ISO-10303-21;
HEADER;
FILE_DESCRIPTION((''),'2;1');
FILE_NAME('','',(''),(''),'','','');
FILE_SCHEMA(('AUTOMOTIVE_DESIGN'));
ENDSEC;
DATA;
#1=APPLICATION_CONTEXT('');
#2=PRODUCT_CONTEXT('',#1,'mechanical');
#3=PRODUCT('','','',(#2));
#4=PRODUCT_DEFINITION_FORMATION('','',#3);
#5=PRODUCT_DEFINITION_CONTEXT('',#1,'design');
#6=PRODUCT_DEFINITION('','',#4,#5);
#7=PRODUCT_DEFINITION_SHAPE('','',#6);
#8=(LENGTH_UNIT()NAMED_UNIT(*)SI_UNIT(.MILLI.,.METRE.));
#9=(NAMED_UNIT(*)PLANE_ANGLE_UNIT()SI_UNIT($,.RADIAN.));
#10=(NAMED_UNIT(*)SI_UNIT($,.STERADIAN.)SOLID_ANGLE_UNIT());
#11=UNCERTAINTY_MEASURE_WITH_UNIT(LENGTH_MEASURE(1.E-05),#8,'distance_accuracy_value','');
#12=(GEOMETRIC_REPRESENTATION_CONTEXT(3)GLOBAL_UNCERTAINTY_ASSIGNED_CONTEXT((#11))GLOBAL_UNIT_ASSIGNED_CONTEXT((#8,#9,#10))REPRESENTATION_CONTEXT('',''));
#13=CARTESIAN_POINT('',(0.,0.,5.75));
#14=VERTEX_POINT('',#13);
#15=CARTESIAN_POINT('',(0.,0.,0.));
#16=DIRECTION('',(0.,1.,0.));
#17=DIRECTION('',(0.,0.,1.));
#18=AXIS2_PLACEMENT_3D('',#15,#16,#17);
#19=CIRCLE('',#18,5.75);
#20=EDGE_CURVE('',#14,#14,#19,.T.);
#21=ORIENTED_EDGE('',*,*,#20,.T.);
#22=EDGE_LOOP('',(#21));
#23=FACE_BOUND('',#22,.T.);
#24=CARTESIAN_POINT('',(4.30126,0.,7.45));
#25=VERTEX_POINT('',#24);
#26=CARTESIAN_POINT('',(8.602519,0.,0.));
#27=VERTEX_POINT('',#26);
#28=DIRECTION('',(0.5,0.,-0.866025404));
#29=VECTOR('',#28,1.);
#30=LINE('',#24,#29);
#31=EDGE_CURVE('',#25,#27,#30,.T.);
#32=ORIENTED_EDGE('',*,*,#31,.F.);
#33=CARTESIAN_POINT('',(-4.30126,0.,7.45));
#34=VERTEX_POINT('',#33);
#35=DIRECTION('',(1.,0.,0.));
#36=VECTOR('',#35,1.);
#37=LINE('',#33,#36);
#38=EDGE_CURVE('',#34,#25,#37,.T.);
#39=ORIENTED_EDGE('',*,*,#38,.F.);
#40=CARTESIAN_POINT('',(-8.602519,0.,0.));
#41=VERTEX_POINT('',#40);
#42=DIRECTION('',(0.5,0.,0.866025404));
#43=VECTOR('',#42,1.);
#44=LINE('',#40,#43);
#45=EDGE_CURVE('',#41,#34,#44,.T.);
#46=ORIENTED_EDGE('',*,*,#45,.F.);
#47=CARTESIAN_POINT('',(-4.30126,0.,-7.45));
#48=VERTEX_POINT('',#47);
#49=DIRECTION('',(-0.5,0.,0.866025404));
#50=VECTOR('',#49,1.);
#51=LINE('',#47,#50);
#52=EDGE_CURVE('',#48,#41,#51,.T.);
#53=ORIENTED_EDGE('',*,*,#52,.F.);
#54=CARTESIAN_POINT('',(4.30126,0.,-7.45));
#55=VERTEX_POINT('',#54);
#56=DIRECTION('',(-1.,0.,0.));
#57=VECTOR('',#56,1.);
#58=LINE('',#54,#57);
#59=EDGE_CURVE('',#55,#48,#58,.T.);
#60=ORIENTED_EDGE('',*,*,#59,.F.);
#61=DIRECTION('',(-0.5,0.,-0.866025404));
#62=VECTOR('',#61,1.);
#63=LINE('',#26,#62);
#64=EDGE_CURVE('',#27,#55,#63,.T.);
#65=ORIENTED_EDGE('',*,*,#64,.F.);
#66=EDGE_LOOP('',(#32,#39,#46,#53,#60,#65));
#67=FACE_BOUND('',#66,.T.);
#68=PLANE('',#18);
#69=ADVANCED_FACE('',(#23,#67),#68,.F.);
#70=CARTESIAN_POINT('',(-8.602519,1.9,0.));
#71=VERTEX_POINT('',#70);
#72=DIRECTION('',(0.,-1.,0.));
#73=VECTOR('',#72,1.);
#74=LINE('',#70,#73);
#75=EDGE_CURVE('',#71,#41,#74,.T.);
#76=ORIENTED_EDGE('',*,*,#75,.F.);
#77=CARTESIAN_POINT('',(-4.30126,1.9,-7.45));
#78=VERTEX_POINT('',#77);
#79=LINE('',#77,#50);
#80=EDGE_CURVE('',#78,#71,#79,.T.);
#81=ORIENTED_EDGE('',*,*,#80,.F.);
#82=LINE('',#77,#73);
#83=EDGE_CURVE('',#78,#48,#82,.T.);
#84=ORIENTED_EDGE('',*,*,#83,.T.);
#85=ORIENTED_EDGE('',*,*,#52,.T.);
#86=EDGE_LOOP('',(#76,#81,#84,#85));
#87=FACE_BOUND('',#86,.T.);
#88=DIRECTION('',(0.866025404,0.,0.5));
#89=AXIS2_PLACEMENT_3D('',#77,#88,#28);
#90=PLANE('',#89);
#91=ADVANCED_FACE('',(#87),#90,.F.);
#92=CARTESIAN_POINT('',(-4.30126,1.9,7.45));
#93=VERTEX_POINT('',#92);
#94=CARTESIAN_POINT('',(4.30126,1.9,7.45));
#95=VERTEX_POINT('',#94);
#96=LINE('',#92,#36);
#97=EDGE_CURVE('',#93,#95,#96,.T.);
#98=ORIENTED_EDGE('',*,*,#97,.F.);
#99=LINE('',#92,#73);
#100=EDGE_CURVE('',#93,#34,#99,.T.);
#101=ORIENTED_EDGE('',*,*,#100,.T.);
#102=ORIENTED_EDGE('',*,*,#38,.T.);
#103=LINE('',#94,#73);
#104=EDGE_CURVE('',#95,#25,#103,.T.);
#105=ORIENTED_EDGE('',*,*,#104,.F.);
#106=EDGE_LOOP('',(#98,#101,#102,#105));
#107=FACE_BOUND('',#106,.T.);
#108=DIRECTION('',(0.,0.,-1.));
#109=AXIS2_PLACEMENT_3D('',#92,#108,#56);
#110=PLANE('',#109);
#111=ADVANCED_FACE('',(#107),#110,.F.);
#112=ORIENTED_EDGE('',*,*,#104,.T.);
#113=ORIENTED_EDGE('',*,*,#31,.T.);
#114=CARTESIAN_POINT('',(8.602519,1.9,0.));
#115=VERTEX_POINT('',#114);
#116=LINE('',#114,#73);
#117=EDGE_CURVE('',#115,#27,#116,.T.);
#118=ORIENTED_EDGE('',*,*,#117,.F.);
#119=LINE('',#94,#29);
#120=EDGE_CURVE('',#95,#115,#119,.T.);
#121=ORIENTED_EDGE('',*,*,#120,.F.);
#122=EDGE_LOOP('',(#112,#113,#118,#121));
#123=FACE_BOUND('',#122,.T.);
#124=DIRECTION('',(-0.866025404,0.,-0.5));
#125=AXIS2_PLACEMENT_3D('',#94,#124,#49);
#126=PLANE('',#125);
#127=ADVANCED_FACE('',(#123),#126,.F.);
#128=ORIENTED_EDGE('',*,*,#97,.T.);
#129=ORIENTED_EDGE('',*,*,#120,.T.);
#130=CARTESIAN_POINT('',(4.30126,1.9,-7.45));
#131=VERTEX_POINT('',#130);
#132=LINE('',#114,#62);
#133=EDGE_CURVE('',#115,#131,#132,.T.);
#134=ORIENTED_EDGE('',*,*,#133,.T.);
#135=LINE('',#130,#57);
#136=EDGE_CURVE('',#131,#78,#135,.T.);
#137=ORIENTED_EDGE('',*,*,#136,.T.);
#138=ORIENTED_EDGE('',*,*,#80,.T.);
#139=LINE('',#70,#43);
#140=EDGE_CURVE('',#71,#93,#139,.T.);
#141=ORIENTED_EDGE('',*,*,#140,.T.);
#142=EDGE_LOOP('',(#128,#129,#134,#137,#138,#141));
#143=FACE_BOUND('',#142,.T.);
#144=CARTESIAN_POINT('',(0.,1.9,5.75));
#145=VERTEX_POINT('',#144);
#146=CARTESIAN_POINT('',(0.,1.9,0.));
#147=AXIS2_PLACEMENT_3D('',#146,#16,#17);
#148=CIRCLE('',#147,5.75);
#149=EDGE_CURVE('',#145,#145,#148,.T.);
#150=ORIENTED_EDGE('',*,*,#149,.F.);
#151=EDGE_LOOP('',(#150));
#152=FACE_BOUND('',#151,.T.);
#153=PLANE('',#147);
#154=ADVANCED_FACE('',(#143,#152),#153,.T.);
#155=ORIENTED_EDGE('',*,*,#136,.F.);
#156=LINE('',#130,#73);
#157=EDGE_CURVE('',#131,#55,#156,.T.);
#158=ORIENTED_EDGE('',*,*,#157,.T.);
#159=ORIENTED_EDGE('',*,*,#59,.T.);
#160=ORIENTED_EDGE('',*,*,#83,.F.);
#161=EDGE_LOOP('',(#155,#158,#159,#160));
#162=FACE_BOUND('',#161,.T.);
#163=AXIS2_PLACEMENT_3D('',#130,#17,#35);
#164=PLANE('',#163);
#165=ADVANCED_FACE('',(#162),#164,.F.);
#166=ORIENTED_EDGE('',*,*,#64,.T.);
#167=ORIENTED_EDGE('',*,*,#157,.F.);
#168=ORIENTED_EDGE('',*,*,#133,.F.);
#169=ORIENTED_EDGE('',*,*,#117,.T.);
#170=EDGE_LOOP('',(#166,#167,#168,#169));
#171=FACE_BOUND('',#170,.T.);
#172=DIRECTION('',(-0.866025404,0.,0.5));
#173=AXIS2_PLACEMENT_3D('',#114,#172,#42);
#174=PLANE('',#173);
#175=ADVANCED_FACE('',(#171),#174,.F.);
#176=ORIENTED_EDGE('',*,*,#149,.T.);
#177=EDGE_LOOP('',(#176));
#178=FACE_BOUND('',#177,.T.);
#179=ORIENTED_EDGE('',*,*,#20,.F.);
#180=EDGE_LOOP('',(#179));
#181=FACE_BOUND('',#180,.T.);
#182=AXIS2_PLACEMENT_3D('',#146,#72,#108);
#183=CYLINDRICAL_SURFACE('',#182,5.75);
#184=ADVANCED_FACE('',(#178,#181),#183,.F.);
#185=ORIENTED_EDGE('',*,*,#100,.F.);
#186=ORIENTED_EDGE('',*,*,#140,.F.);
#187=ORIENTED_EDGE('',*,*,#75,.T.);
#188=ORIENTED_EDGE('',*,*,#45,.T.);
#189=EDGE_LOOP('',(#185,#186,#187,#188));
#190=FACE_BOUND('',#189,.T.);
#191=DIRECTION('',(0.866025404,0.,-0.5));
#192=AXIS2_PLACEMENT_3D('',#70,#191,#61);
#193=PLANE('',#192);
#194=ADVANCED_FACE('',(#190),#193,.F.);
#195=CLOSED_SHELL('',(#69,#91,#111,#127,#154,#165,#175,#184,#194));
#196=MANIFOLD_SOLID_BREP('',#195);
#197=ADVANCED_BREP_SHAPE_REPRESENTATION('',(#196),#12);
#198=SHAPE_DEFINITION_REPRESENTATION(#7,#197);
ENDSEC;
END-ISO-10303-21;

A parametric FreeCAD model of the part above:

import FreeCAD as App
import Part
import Sketcher

V = App.Vector
Q = App.Units.Quantity


def add_polygon(sketch, points):
    """Adds a closed chain of lines whose ends are joined by coincident constraints."""
    first, n = sketch.GeometryCount, len(points)
    for a, b in zip(points, points[1:] + points[:1]):
        sketch.addGeometry(Part.LineSegment(App.Vector(*a, 0), App.Vector(*b, 0)), False)
    for i in range(n):
        sketch.addConstraint(Sketcher.Constraint("Coincident", first + i, 2, first + (i + 1) % n, 1))

doc = App.newDocument("Part")
params = doc.addObject("Spreadsheet::Sheet", "Params")
for row, (alias, value) in enumerate([
    ("sketch1_diameter", "11.5 mm"),
    ("pad1_length", "1.9 mm"),
], start=1):
    params.set(f"A{row}", alias)
    params.set(f"B{row}", "=" + value)
    params.setAlias(f"B{row}", alias)

body = doc.addObject("PartDesign::Body", "Body")

sketch1 = doc.addObject("Sketcher::SketchObject", "Sketch")
body.addObject(sketch1)
sketch1.AttachmentSupport = (doc.XZ_Plane, [""])
sketch1.MapMode = "FlatFace"
add_polygon(sketch1, [(-9, 0), (-4, 7), (4, 7), (9, 0), (4, -7), (-4, -7)])
sketch1.addGeometry(Part.Circle(V(0, 0, 0), V(0, 0, 1), 6), False)
sketch1.addConstraint([
    Sketcher.Constraint("Horizontal", 1),
    Sketcher.Constraint("Horizontal", 4),
    Sketcher.Constraint("Coincident", 6, 3, -1, 1),
    Sketcher.Constraint("Symmetric", 0, 2, 3, 2, -1, 1),
    Sketcher.Constraint("Symmetric", 2, 2, 5, 2, -1, 1),
    Sketcher.Constraint("PointOnObject", 2, 2, -1),
    Sketcher.Constraint("Parallel", 2, 5),
    Sketcher.Constraint("Vertical", 1, 2, 3, 2),
    Sketcher.Constraint("Diameter", 6, 11.5),
    Sketcher.Constraint("Angle", 0, Q("60 deg")),
    Sketcher.Constraint("DistanceY", 3, 2, 1, 2, 14.9),
    Sketcher.Constraint("DistanceX", 1, 1, 1, 2, 8.602519),
])
sketch1.setExpression("Constraints[14]", "Params.sketch1_diameter")
pad1 = doc.addObject("PartDesign::Pad", "Pad")
body.addObject(pad1)
pad1.Profile = sketch1
pad1.setExpression("Length", "Params.pad1_length")
pad1.Reversed = True

doc.recompute()
